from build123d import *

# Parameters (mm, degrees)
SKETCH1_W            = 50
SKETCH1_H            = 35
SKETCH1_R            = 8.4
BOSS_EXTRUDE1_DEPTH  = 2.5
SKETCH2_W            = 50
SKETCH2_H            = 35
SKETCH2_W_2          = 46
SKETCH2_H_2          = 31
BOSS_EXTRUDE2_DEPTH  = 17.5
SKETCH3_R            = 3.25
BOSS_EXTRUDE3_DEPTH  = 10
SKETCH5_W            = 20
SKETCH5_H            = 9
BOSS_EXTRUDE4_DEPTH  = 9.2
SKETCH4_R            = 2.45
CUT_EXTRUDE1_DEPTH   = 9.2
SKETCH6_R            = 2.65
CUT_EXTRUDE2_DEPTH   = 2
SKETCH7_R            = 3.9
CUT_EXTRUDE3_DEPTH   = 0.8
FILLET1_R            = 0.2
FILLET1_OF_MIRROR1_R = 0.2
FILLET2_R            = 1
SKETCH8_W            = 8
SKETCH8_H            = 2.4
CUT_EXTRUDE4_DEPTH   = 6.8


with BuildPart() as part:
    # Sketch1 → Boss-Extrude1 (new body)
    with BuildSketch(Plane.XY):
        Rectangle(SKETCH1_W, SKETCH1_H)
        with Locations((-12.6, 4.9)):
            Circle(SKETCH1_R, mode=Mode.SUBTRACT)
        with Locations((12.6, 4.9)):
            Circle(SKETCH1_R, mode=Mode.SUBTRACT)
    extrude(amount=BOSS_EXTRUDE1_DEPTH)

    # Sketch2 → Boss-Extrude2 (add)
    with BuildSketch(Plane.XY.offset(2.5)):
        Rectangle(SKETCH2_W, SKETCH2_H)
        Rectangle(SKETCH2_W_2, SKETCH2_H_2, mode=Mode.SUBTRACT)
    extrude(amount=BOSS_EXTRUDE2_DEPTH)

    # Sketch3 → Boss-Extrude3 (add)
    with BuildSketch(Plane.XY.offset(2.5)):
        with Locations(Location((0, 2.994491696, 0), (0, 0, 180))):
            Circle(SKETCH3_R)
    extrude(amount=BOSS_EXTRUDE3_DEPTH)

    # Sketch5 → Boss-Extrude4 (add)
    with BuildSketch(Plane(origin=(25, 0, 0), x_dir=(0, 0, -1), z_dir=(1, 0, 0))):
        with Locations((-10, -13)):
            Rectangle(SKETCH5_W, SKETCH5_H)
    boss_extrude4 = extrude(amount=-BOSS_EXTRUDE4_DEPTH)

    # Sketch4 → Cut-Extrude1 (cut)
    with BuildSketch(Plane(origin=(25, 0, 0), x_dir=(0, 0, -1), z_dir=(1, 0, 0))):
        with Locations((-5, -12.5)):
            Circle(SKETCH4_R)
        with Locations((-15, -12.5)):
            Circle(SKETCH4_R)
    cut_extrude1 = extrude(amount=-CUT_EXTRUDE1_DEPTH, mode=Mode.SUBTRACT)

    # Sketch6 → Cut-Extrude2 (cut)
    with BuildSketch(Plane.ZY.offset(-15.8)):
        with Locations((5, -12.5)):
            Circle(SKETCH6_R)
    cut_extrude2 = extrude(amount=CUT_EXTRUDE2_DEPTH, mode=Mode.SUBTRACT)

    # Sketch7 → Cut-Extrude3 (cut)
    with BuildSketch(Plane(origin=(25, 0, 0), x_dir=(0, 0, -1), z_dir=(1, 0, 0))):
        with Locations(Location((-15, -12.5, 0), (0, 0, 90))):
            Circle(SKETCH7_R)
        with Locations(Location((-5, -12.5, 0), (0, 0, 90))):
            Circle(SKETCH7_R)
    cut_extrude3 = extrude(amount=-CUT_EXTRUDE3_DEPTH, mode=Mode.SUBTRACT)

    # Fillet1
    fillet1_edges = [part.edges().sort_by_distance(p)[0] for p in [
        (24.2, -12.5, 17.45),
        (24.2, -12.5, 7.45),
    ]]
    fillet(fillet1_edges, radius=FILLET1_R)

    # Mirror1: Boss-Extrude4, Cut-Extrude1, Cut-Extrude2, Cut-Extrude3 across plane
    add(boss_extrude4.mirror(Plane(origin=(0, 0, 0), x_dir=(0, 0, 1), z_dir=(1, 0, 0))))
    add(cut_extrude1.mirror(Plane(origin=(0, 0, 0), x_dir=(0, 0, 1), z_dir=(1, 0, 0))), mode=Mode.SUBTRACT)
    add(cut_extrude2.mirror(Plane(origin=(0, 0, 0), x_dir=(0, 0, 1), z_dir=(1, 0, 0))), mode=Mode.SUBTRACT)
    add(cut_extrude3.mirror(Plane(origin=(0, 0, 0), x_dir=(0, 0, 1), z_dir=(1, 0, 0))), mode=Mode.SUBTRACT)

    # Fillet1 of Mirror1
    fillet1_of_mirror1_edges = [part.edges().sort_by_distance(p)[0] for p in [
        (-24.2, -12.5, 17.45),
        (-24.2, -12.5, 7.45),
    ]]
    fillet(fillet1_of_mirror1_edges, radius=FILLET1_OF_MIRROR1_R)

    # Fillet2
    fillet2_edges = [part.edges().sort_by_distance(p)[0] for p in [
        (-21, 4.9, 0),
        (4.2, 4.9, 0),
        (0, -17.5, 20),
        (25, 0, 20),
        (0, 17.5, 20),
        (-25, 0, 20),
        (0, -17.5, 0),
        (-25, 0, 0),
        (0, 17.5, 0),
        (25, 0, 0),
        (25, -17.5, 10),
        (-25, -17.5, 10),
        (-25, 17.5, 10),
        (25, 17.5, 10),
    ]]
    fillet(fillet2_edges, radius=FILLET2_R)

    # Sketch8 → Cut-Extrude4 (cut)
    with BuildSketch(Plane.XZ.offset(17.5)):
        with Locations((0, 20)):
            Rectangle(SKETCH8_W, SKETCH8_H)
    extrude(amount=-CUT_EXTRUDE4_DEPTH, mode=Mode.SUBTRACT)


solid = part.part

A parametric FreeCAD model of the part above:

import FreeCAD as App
import Part
import Sketcher

V = App.Vector


def edges_at(feature, points):
    """Names of the edges that pass closest to the given points."""
    edges = feature.Shape.Edges
    near = lambda p: min(range(len(edges)), key=lambda i: edges[i].distToShape(Part.Vertex(*p))[0])
    return sorted({f"Edge{near(p) + 1}" for p in points})

doc = App.newDocument("Part")
body = doc.addObject("PartDesign::Body", "Body")

sketch1 = doc.addObject("Sketcher::SketchObject", "Sketch")
body.addObject(sketch1)
sketch1.AttachmentSupport = (doc.XY_Plane, [""])
sketch1.MapMode = "FlatFace"
sketch1.addGeometry(Part.LineSegment(V(-25, 17.5, 0), V(-25, -17.5, 0)), False)
sketch1.addGeometry(Part.LineSegment(V(-25, -17.5, 0), V(25, -17.5, 0)), False)
sketch1.addGeometry(Part.LineSegment(V(25, -17.5, 0), V(25, 17.5, 0)), False)
sketch1.addGeometry(Part.LineSegment(V(25, 17.5, 0), V(-25, 17.5, 0)), False)
sketch1.addGeometry(Part.Circle(V(-12.6, 4.9, 0), V(0, 0, 1), 8.4), False)
sketch1.addGeometry(Part.Circle(V(12.6, 4.9, 0), V(0, 0, 1), 8.4), False)
sketch1.addConstraint(Sketcher.Constraint("Coincident", 0, 2, 1, 1))
sketch1.addConstraint(Sketcher.Constraint("Coincident", 1, 2, 2, 1))
sketch1.addConstraint(Sketcher.Constraint("Coincident", 2, 2, 3, 1))
sketch1.addConstraint(Sketcher.Constraint("Coincident", 3, 2, 0, 1))
sketch1.addConstraint(Sketcher.Constraint("Vertical", 0))
sketch1.addConstraint(Sketcher.Constraint("Horizontal", 1))
sketch1.addConstraint(Sketcher.Constraint("Vertical", 2))
sketch1.addConstraint(Sketcher.Constraint("Horizontal", 3))
sketch1.addConstraint(Sketcher.Constraint("Equal", 4, 5))
sketch1.addConstraint(Sketcher.Constraint("Symmetric", 0, 2, 2, 2, -1, 1))
sketch1.addConstraint(Sketcher.Constraint("Symmetric", 4, 3, 5, 3, -2))
sketch1.addConstraint(Sketcher.Constraint("Diameter", 4, 16.8))
sketch1.addConstraint(Sketcher.Constraint("DistanceX", 1, 1, 1, 2, 50.0))
sketch1.addConstraint(Sketcher.Constraint("DistanceY", 0, 2, 0, 1, 35.0))
sketch1.addConstraint(Sketcher.Constraint("DistanceX", 4, 3, -1, 1, 12.6))
sketch1.addConstraint(Sketcher.Constraint("DistanceY", -1, 1, 4, 3, 4.9))
pad1 = doc.addObject("PartDesign::Pad", "Pad")
body.addObject(pad1)
pad1.Profile = sketch1
pad1.Length = 2.5

sketch2 = doc.addObject("Sketcher::SketchObject", "Sketch001")
body.addObject(sketch2)
sketch2.AttachmentSupport = (doc.XY_Plane, [""])
sketch2.MapMode = "FlatFace"
sketch2.AttachmentOffset = App.Placement(V(0, 0, 2.5), App.Rotation())
sketch2.addGeometry(Part.LineSegment(V(-25, 17.5, 0), V(-25, -17.5, 0)), False)
sketch2.addGeometry(Part.LineSegment(V(-25, -17.5, 0), V(25, -17.5, 0)), False)
sketch2.addGeometry(Part.LineSegment(V(25, -17.5, 0), V(25, 17.5, 0)), False)
sketch2.addGeometry(Part.LineSegment(V(25, 17.5, 0), V(-25, 17.5, 0)), False)
sketch2.addGeometry(Part.LineSegment(V(23, -15.5, 0), V(-23, -15.5, 0)), False)
sketch2.addGeometry(Part.LineSegment(V(-23, -15.5, 0), V(-23, 15.5, 0)), False)
sketch2.addGeometry(Part.LineSegment(V(-23, 15.5, 0), V(23, 15.5, 0)), False)
sketch2.addGeometry(Part.LineSegment(V(23, 15.5, 0), V(23, -15.5, 0)), False)
sketch2.addConstraint(Sketcher.Constraint("Coincident", 0, 2, 1, 1))
sketch2.addConstraint(Sketcher.Constraint("Coincident", 1, 2, 2, 1))
sketch2.addConstraint(Sketcher.Constraint("Coincident", 2, 2, 3, 1))
sketch2.addConstraint(Sketcher.Constraint("Coincident", 3, 2, 0, 1))
sketch2.addConstraint(Sketcher.Constraint("Coincident", 4, 2, 5, 1))
sketch2.addConstraint(Sketcher.Constraint("Coincident", 5, 2, 6, 1))
sketch2.addConstraint(Sketcher.Constraint("Coincident", 6, 2, 7, 1))
sketch2.addConstraint(Sketcher.Constraint("Coincident", 7, 2, 4, 1))
sketch2.addConstraint(Sketcher.Constraint("Vertical", 0))
sketch2.addConstraint(Sketcher.Constraint("Horizontal", 1))
sketch2.addConstraint(Sketcher.Constraint("Vertical", 2))
sketch2.addConstraint(Sketcher.Constraint("Horizontal", 3))
sketch2.addConstraint(Sketcher.Constraint("Horizontal", 4))
sketch2.addConstraint(Sketcher.Constraint("Vertical", 5))
sketch2.addConstraint(Sketcher.Constraint("Horizontal", 6))
sketch2.addConstraint(Sketcher.Constraint("Vertical", 7))
sketch2.addConstraint(Sketcher.Constraint("Symmetric", 0, 2, 2, 2, -1, 1))
sketch2.addConstraint(Sketcher.Constraint("Symmetric", 4, 2, 6, 2, -1, 1))
sketch2.addConstraint(Sketcher.Constraint("DistanceX", 1, 1, 1, 2, 50.0))
sketch2.addConstraint(Sketcher.Constraint("DistanceX", 4, 2, 4, 1, 46.0))
sketch2.addConstraint(Sketcher.Constraint("DistanceY", 0, 2, 0, 1, 35.0))
sketch2.addConstraint(Sketcher.Constraint("DistanceY", 5, 1, 5, 2, 31.0))
pad2 = doc.addObject("PartDesign::Pad", "Pad001")
body.addObject(pad2)
pad2.Profile = sketch2
pad2.Length = 17.5

sketch3 = doc.addObject("Sketcher::SketchObject", "Sketch002")
body.addObject(sketch3)
sketch3.AttachmentSupport = (doc.XY_Plane, [""])
sketch3.MapMode = "FlatFace"
sketch3.AttachmentOffset = App.Placement(V(0, 0, 2.5), App.Rotation())
sketch3.addGeometry(Part.Circle(V(0, 2.994492, 0), V(0, 0, 1), 3.25), False)
sketch3.addConstraint(Sketcher.Constraint("PointOnObject", 0, 3, -2))
sketch3.addConstraint(Sketcher.Constraint("Diameter", 0, 6.5))
sketch3.addConstraint(Sketcher.Constraint("DistanceY", -1, 1, 0, 3, 2.994492))
pad3 = doc.addObject("PartDesign::Pad", "Pad002")
body.addObject(pad3)
pad3.Profile = sketch3
pad3.Length = 10

sketch4 = doc.addObject("Sketcher::SketchObject", "Sketch003")
body.addObject(sketch4)
sketch4.AttachmentSupport = (doc.YZ_Plane, [""])
sketch4.MapMode = "FlatFace"
sketch4.AttachmentOffset = App.Placement(V(0, 0, 25), App.Rotation())
sketch4.addGeometry(Part.LineSegment(V(-8.5, 20, 0), V(-17.5, 20, 0)), False)
sketch4.addGeometry(Part.LineSegment(V(-17.5, 20, 0), V(-17.5, 0, 0)), False)
sketch4.addGeometry(Part.LineSegment(V(-17.5, 0, 0), V(-8.5, 0, 0)), False)
sketch4.addGeometry(Part.LineSegment(V(-8.5, 0, 0), V(-8.5, 20, 0)), False)
sketch4.addConstraint(Sketcher.Constraint("Coincident", 0, 2, 1, 1))
sketch4.addConstraint(Sketcher.Constraint("Coincident", 1, 2, 2, 1))
sketch4.addConstraint(Sketcher.Constraint("Coincident", 2, 2, 3, 1))
sketch4.addConstraint(Sketcher.Constraint("Coincident", 3, 2, 0, 1))
sketch4.addConstraint(Sketcher.Constraint("Horizontal", 0))
sketch4.addConstraint(Sketcher.Constraint("Vertical", 1))
sketch4.addConstraint(Sketcher.Constraint("Horizontal", 2))
sketch4.addConstraint(Sketcher.Constraint("Vertical", 3))
sketch4.addConstraint(Sketcher.Constraint("PointOnObject", 1, 2, -1))
sketch4.addConstraint(Sketcher.Constraint("DistanceX", 0, 2, 0, 1, 9.0))
sketch4.addConstraint(Sketcher.Constraint("DistanceY", 1, 2, 1, 1, 20.0))
sketch4.addConstraint(Sketcher.Constraint("DistanceX", 0, 2, -1, 1, 17.5))
pad4 = doc.addObject("PartDesign::Pad", "Pad003")
body.addObject(pad4)
pad4.Profile = sketch4
pad4.Length = 9.2
pad4.Reversed = True

sketch5 = doc.addObject("Sketcher::SketchObject", "Sketch004")
body.addObject(sketch5)
sketch5.AttachmentSupport = (doc.YZ_Plane, [""])
sketch5.MapMode = "FlatFace"
sketch5.AttachmentOffset = App.Placement(V(0, 0, 25), App.Rotation())
sketch5.addGeometry(Part.Circle(V(-12.5, 5, 0), V(0, 0, 1), 2.45), False)
sketch5.addGeometry(Part.Circle(V(-12.5, 15, 0), V(0, 0, 1), 2.45), False)
sketch5.addConstraint(Sketcher.Constraint("Equal", 0, 1))
sketch5.addConstraint(Sketcher.Constraint("Vertical", 0, 3, 1, 3))
sketch5.addConstraint(Sketcher.Constraint("Diameter", 0, 4.9))
sketch5.addConstraint(Sketcher.Constraint("DistanceY", -1, 1, 0, 3, 5.0))
sketch5.addConstraint(Sketcher.Constraint("DistanceY", -1, 1, 1, 3, 15.0))
sketch5.addConstraint(Sketcher.Constraint("DistanceX", 0, 3, -1, 1, 12.5))
pocket1 = doc.addObject("PartDesign::Pocket", "Pocket")
body.addObject(pocket1)
pocket1.Profile = sketch5
pocket1.Length = 9.2

sketch6 = doc.addObject("Sketcher::SketchObject", "Sketch005")
body.addObject(sketch6)
sketch6.AttachmentSupport = (doc.YZ_Plane, [""])
sketch6.MapMode = "FlatFace"
sketch6.AttachmentOffset = App.Placement(V(0, 0, 15.8), App.Rotation())
sketch6.addGeometry(Part.Circle(V(-12.5, 5, 0), V(0, 0, 1), 2.65), False)
sketch6.addConstraint(Sketcher.Constraint("Diameter", 0, 5.3))
sketch6.addConstraint(Sketcher.Constraint("DistanceY", -1, 1, 0, 3, 5.0))
sketch6.addConstraint(Sketcher.Constraint("DistanceX", 0, 3, -1, 1, 12.5))
pocket2 = doc.addObject("PartDesign::Pocket", "Pocket001")
body.addObject(pocket2)
pocket2.Profile = sketch6
pocket2.Length = 2

sketch7 = doc.addObject("Sketcher::SketchObject", "Sketch006")
body.addObject(sketch7)
sketch7.AttachmentSupport = (doc.YZ_Plane, [""])
sketch7.MapMode = "FlatFace"
sketch7.AttachmentOffset = App.Placement(V(0, 0, 25), App.Rotation())
sketch7.addGeometry(Part.Circle(V(-12.5, 15, 0), V(0, 0, 1), 3.9), False)
sketch7.addGeometry(Part.Circle(V(-12.5, 5, 0), V(0, 0, 1), 3.9), False)
sketch7.addConstraint(Sketcher.Constraint("Equal", 0, 1))
sketch7.addConstraint(Sketcher.Constraint("Vertical", 0, 3, 1, 3))
sketch7.addConstraint(Sketcher.Constraint("Diameter", 0, 7.8))
sketch7.addConstraint(Sketcher.Constraint("DistanceY", -1, 1, 0, 3, 15.0))
sketch7.addConstraint(Sketcher.Constraint("DistanceY", -1, 1, 1, 3, 5.0))
sketch7.addConstraint(Sketcher.Constraint("DistanceX", 0, 3, -1, 1, 12.5))
pocket3 = doc.addObject("PartDesign::Pocket", "Pocket002")
body.addObject(pocket3)
pocket3.Profile = sketch7
pocket3.Length = 0.8
doc.recompute()

fillet = doc.addObject("PartDesign::Fillet", "Fillet")
body.addObject(fillet)
fillet.Base = (pocket3, edges_at(pocket3, [(24.2, -12.5, 17.45), (24.2, -12.5, 7.45)]))
fillet.Radius = 0.2
doc.recompute()

mirrored = doc.addObject("PartDesign::Mirrored", "Mirrored")
body.addObject(mirrored)
mirrored.Originals = [pad4, pocket1, pocket2, pocket3]
mirrored.MirrorPlane = (doc.YZ_Plane, [""])
body.Tip = mirrored
doc.recompute()

fillet2 = doc.addObject("PartDesign::Fillet", "Fillet001")
body.addObject(fillet2)
fillet2.Base = (mirrored, edges_at(mirrored, [(-24.2, -12.5, 17.45), (-24.2, -12.5, 7.45)]))
fillet2.Radius = 0.2
doc.recompute()

fillet3 = doc.addObject("PartDesign::Fillet", "Fillet002")
body.addObject(fillet3)
fillet3.Base = (fillet2, edges_at(fillet2, [
    (-21, 4.9, 0),
    (4.2, 4.9, 0),
    (0, -17.5, 20),
    (25, 0, 20),
    (0, 17.5, 20),
    (-25, 0, 20),
    (0, -17.5, 0),
    (-25, 0, 0),
    (0, 17.5, 0),
    (25, 0, 0),
    (25, -17.5, 10),
    (-25, -17.5, 10),
    (-25, 17.5, 10),
    (25, 17.5, 10),
]))
fillet3.Radius = 1

sketch8 = doc.addObject("Sketcher::SketchObject", "Sketch007")
body.addObject(sketch8)
sketch8.AttachmentSupport = (doc.XZ_Plane, [""])
sketch8.MapMode = "FlatFace"
sketch8.AttachmentOffset = App.Placement(V(0, 0, 17.5), App.Rotation())
sketch8.addGeometry(Part.LineSegment(V(-4, 21.2, 0), V(-4, 18.8, 0)), False)
sketch8.addGeometry(Part.LineSegment(V(-4, 18.8, 0), V(4, 18.8, 0)), False)
sketch8.addGeometry(Part.LineSegment(V(4, 18.8, 0), V(4, 21.2, 0)), False)
sketch8.addGeometry(Part.LineSegment(V(4, 21.2, 0), V(-4, 21.2, 0)), False)
sketch8.addConstraint(Sketcher.Constraint("Coincident", 0, 2, 1, 1))
sketch8.addConstraint(Sketcher.Constraint("Coincident", 1, 2, 2, 1))
sketch8.addConstraint(Sketcher.Constraint("Coincident", 2, 2, 3, 1))
sketch8.addConstraint(Sketcher.Constraint("Coincident", 3, 2, 0, 1))
sketch8.addConstraint(Sketcher.Constraint("Vertical", 0))
sketch8.addConstraint(Sketcher.Constraint("Horizontal", 1))
sketch8.addConstraint(Sketcher.Constraint("Vertical", 2))
sketch8.addConstraint(Sketcher.Constraint("Horizontal", 3))
sketch8.addConstraint(Sketcher.Constraint("DistanceX", 1, 1, 1, 2, 8.0))
sketch8.addConstraint(Sketcher.Constraint("DistanceY", 0, 2, 0, 1, 2.4))
sketch8.addConstraint(Sketcher.Constraint("DistanceX", 0, 2, -1, 1, 4.0))
sketch8.addConstraint(Sketcher.Constraint("DistanceY", -1, 1, 0, 2, 18.8))
pocket4 = doc.addObject("PartDesign::Pocket", "Pocket003")
body.addObject(pocket4)
pocket4.Profile = sketch8
pocket4.Length = 6.8

doc.recompute()
